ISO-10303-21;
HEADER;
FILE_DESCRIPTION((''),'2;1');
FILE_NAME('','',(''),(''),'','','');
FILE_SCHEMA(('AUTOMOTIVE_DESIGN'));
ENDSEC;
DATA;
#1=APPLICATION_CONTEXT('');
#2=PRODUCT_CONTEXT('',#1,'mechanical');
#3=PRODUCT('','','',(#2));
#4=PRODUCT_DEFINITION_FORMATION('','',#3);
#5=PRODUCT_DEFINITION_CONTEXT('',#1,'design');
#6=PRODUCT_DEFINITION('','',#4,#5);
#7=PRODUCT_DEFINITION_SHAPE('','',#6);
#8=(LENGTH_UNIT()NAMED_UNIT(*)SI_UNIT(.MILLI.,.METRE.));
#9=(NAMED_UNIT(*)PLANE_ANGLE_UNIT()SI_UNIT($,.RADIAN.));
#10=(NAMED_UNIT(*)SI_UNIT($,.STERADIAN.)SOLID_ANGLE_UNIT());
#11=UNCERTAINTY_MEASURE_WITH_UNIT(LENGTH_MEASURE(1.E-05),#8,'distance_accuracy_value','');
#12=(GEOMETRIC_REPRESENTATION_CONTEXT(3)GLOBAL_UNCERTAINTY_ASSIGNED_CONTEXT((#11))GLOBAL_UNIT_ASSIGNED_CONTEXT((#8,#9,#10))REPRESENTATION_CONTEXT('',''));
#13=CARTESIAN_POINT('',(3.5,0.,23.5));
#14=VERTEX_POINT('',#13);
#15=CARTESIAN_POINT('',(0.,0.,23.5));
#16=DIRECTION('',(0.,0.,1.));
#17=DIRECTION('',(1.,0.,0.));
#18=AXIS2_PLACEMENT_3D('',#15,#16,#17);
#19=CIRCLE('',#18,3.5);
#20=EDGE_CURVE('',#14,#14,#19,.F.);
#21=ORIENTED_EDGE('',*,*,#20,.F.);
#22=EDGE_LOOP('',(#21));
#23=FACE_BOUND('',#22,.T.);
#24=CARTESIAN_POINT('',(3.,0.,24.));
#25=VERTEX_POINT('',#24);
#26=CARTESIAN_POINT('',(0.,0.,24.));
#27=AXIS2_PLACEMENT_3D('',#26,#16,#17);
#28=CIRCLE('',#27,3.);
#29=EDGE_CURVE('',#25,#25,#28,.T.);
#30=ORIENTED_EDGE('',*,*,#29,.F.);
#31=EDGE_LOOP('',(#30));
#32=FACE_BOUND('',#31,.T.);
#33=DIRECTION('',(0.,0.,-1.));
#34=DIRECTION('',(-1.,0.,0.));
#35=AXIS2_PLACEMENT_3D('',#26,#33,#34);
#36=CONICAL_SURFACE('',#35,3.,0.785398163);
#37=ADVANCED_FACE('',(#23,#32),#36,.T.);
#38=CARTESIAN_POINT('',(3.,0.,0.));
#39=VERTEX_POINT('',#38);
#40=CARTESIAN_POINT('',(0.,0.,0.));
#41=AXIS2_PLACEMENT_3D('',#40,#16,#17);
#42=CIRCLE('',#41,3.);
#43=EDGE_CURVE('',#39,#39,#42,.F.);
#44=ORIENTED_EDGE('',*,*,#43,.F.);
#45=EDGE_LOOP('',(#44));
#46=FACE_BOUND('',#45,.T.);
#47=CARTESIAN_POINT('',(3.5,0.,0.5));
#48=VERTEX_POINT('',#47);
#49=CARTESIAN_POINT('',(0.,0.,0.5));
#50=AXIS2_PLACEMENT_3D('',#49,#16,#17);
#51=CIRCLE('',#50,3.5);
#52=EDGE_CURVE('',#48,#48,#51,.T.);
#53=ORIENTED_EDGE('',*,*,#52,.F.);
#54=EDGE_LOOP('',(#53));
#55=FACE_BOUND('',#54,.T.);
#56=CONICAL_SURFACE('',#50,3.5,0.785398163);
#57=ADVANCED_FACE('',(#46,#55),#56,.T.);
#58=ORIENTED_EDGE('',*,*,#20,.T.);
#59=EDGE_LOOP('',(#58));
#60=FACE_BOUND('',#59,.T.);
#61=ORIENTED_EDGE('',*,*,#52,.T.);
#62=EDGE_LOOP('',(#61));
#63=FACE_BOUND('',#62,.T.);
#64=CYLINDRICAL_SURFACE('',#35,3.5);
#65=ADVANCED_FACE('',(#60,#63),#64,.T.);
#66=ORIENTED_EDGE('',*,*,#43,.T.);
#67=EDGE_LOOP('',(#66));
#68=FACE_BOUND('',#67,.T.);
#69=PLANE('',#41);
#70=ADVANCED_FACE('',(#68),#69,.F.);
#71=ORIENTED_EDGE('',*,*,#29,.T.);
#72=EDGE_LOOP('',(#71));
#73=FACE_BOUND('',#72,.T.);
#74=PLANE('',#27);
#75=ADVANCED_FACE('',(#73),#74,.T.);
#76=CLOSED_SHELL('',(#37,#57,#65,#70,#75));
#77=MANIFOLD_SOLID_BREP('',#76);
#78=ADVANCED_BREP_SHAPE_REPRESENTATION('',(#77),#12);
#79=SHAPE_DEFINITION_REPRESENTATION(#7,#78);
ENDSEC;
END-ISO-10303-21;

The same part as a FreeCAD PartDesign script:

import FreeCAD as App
import Part
import Sketcher
from FreeCAD import Vector
Q = App.Units.Quantity


def edges_at(feature, points):
    """Names of the edges that pass closest to the given points."""
    edges = feature.Shape.Edges
    near = lambda p: min(range(len(edges)), key=lambda i: edges[i].distToShape(Part.Vertex(*p))[0])
    return sorted({f"Edge{near(p) + 1}" for p in points})

doc = App.newDocument("Part")
params = doc.addObject("Spreadsheet::Sheet", "Params")
for row, (alias, value) in enumerate([
    ("sketch1_diameter", "7 mm"),
    ("pad1_length", "24 mm"),
    ("chamfer_size", "0.5 mm"),
], start=1):
    params.set(f"A{row}", alias)
    params.set(f"B{row}", "=" + value)
    params.setAlias(f"B{row}", alias)

body = doc.addObject("PartDesign::Body", "Body")

sketch1 = body.newObject("Sketcher::SketchObject", "Sketch")
sketch1.AttachmentSupport = (doc.getObject("XY_Plane"), [""])
sketch1.MapMode = "FlatFace"
sketch1.addGeometry(Part.Circle(Vector(0, 0, 0), Vector(0, 0, 1), 3.5), False)
sketch1.addConstraint([
    Sketcher.Constraint("Coincident", 0, 3, -1, 1),
    Sketcher.Constraint("Diameter", 0, Q("7 mm")),
])
sketch1.setExpression("Constraints[1]", "Params.sketch1_diameter")
pad1 = body.newObject("PartDesign::Pad", "Pad")
pad1.Profile = sketch1
pad1.setExpression("Length", "Params.pad1_length")
doc.recompute()

chamfer = body.newObject("PartDesign::Chamfer", "Chamfer")
chamfer.Base = (pad1, edges_at(pad1, [(-3.5, 0, 0), (-3.5, 0, 24)]))
chamfer.setExpression("Size", "Params.chamfer_size")

doc.recompute()
